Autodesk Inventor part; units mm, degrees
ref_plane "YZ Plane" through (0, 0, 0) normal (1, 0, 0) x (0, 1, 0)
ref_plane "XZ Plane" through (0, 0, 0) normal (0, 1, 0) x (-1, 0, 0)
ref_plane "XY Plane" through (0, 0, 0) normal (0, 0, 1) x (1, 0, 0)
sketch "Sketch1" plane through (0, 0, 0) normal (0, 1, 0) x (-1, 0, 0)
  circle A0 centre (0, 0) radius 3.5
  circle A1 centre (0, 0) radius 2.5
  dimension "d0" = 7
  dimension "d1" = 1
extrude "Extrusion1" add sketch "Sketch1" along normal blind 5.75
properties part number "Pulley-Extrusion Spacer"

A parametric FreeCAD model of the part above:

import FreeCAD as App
import Part
import Sketcher

V = App.Vector

doc = App.newDocument("Part")
body = doc.addObject("PartDesign::Body", "Body")

# Sketch on XZ plane
sketch1 = doc.addObject("Sketcher::SketchObject", "Sketch")
body.addObject(sketch1)
sketch1.AttachmentSupport = (doc.XZ_Plane, [""])
sketch1.MapMode = "FlatFace"
sketch1.addGeometry(Part.Circle(V(0, 0, 0), V(0, 0, 1), 3.5), False)
sketch1.addGeometry(Part.Circle(V(0, 0, 0), V(0, 0, 1), 2.5), False)
sketch1.addConstraint(Sketcher.Constraint("Coincident", 0, 3, -1, 1))
sketch1.addConstraint(Sketcher.Constraint("Coincident", 1, 3, -1, 1))
sketch1.addConstraint(Sketcher.Constraint("Diameter", 0, 7.0))
sketch1.addConstraint(Sketcher.Constraint("Diameter", 1, 5.0))
pad1 = doc.addObject("PartDesign::Pad", "Pad")
body.addObject(pad1)
pad1.Profile = sketch1
pad1.Length = 5.75
pad1.Reversed = True

doc.recompute()
